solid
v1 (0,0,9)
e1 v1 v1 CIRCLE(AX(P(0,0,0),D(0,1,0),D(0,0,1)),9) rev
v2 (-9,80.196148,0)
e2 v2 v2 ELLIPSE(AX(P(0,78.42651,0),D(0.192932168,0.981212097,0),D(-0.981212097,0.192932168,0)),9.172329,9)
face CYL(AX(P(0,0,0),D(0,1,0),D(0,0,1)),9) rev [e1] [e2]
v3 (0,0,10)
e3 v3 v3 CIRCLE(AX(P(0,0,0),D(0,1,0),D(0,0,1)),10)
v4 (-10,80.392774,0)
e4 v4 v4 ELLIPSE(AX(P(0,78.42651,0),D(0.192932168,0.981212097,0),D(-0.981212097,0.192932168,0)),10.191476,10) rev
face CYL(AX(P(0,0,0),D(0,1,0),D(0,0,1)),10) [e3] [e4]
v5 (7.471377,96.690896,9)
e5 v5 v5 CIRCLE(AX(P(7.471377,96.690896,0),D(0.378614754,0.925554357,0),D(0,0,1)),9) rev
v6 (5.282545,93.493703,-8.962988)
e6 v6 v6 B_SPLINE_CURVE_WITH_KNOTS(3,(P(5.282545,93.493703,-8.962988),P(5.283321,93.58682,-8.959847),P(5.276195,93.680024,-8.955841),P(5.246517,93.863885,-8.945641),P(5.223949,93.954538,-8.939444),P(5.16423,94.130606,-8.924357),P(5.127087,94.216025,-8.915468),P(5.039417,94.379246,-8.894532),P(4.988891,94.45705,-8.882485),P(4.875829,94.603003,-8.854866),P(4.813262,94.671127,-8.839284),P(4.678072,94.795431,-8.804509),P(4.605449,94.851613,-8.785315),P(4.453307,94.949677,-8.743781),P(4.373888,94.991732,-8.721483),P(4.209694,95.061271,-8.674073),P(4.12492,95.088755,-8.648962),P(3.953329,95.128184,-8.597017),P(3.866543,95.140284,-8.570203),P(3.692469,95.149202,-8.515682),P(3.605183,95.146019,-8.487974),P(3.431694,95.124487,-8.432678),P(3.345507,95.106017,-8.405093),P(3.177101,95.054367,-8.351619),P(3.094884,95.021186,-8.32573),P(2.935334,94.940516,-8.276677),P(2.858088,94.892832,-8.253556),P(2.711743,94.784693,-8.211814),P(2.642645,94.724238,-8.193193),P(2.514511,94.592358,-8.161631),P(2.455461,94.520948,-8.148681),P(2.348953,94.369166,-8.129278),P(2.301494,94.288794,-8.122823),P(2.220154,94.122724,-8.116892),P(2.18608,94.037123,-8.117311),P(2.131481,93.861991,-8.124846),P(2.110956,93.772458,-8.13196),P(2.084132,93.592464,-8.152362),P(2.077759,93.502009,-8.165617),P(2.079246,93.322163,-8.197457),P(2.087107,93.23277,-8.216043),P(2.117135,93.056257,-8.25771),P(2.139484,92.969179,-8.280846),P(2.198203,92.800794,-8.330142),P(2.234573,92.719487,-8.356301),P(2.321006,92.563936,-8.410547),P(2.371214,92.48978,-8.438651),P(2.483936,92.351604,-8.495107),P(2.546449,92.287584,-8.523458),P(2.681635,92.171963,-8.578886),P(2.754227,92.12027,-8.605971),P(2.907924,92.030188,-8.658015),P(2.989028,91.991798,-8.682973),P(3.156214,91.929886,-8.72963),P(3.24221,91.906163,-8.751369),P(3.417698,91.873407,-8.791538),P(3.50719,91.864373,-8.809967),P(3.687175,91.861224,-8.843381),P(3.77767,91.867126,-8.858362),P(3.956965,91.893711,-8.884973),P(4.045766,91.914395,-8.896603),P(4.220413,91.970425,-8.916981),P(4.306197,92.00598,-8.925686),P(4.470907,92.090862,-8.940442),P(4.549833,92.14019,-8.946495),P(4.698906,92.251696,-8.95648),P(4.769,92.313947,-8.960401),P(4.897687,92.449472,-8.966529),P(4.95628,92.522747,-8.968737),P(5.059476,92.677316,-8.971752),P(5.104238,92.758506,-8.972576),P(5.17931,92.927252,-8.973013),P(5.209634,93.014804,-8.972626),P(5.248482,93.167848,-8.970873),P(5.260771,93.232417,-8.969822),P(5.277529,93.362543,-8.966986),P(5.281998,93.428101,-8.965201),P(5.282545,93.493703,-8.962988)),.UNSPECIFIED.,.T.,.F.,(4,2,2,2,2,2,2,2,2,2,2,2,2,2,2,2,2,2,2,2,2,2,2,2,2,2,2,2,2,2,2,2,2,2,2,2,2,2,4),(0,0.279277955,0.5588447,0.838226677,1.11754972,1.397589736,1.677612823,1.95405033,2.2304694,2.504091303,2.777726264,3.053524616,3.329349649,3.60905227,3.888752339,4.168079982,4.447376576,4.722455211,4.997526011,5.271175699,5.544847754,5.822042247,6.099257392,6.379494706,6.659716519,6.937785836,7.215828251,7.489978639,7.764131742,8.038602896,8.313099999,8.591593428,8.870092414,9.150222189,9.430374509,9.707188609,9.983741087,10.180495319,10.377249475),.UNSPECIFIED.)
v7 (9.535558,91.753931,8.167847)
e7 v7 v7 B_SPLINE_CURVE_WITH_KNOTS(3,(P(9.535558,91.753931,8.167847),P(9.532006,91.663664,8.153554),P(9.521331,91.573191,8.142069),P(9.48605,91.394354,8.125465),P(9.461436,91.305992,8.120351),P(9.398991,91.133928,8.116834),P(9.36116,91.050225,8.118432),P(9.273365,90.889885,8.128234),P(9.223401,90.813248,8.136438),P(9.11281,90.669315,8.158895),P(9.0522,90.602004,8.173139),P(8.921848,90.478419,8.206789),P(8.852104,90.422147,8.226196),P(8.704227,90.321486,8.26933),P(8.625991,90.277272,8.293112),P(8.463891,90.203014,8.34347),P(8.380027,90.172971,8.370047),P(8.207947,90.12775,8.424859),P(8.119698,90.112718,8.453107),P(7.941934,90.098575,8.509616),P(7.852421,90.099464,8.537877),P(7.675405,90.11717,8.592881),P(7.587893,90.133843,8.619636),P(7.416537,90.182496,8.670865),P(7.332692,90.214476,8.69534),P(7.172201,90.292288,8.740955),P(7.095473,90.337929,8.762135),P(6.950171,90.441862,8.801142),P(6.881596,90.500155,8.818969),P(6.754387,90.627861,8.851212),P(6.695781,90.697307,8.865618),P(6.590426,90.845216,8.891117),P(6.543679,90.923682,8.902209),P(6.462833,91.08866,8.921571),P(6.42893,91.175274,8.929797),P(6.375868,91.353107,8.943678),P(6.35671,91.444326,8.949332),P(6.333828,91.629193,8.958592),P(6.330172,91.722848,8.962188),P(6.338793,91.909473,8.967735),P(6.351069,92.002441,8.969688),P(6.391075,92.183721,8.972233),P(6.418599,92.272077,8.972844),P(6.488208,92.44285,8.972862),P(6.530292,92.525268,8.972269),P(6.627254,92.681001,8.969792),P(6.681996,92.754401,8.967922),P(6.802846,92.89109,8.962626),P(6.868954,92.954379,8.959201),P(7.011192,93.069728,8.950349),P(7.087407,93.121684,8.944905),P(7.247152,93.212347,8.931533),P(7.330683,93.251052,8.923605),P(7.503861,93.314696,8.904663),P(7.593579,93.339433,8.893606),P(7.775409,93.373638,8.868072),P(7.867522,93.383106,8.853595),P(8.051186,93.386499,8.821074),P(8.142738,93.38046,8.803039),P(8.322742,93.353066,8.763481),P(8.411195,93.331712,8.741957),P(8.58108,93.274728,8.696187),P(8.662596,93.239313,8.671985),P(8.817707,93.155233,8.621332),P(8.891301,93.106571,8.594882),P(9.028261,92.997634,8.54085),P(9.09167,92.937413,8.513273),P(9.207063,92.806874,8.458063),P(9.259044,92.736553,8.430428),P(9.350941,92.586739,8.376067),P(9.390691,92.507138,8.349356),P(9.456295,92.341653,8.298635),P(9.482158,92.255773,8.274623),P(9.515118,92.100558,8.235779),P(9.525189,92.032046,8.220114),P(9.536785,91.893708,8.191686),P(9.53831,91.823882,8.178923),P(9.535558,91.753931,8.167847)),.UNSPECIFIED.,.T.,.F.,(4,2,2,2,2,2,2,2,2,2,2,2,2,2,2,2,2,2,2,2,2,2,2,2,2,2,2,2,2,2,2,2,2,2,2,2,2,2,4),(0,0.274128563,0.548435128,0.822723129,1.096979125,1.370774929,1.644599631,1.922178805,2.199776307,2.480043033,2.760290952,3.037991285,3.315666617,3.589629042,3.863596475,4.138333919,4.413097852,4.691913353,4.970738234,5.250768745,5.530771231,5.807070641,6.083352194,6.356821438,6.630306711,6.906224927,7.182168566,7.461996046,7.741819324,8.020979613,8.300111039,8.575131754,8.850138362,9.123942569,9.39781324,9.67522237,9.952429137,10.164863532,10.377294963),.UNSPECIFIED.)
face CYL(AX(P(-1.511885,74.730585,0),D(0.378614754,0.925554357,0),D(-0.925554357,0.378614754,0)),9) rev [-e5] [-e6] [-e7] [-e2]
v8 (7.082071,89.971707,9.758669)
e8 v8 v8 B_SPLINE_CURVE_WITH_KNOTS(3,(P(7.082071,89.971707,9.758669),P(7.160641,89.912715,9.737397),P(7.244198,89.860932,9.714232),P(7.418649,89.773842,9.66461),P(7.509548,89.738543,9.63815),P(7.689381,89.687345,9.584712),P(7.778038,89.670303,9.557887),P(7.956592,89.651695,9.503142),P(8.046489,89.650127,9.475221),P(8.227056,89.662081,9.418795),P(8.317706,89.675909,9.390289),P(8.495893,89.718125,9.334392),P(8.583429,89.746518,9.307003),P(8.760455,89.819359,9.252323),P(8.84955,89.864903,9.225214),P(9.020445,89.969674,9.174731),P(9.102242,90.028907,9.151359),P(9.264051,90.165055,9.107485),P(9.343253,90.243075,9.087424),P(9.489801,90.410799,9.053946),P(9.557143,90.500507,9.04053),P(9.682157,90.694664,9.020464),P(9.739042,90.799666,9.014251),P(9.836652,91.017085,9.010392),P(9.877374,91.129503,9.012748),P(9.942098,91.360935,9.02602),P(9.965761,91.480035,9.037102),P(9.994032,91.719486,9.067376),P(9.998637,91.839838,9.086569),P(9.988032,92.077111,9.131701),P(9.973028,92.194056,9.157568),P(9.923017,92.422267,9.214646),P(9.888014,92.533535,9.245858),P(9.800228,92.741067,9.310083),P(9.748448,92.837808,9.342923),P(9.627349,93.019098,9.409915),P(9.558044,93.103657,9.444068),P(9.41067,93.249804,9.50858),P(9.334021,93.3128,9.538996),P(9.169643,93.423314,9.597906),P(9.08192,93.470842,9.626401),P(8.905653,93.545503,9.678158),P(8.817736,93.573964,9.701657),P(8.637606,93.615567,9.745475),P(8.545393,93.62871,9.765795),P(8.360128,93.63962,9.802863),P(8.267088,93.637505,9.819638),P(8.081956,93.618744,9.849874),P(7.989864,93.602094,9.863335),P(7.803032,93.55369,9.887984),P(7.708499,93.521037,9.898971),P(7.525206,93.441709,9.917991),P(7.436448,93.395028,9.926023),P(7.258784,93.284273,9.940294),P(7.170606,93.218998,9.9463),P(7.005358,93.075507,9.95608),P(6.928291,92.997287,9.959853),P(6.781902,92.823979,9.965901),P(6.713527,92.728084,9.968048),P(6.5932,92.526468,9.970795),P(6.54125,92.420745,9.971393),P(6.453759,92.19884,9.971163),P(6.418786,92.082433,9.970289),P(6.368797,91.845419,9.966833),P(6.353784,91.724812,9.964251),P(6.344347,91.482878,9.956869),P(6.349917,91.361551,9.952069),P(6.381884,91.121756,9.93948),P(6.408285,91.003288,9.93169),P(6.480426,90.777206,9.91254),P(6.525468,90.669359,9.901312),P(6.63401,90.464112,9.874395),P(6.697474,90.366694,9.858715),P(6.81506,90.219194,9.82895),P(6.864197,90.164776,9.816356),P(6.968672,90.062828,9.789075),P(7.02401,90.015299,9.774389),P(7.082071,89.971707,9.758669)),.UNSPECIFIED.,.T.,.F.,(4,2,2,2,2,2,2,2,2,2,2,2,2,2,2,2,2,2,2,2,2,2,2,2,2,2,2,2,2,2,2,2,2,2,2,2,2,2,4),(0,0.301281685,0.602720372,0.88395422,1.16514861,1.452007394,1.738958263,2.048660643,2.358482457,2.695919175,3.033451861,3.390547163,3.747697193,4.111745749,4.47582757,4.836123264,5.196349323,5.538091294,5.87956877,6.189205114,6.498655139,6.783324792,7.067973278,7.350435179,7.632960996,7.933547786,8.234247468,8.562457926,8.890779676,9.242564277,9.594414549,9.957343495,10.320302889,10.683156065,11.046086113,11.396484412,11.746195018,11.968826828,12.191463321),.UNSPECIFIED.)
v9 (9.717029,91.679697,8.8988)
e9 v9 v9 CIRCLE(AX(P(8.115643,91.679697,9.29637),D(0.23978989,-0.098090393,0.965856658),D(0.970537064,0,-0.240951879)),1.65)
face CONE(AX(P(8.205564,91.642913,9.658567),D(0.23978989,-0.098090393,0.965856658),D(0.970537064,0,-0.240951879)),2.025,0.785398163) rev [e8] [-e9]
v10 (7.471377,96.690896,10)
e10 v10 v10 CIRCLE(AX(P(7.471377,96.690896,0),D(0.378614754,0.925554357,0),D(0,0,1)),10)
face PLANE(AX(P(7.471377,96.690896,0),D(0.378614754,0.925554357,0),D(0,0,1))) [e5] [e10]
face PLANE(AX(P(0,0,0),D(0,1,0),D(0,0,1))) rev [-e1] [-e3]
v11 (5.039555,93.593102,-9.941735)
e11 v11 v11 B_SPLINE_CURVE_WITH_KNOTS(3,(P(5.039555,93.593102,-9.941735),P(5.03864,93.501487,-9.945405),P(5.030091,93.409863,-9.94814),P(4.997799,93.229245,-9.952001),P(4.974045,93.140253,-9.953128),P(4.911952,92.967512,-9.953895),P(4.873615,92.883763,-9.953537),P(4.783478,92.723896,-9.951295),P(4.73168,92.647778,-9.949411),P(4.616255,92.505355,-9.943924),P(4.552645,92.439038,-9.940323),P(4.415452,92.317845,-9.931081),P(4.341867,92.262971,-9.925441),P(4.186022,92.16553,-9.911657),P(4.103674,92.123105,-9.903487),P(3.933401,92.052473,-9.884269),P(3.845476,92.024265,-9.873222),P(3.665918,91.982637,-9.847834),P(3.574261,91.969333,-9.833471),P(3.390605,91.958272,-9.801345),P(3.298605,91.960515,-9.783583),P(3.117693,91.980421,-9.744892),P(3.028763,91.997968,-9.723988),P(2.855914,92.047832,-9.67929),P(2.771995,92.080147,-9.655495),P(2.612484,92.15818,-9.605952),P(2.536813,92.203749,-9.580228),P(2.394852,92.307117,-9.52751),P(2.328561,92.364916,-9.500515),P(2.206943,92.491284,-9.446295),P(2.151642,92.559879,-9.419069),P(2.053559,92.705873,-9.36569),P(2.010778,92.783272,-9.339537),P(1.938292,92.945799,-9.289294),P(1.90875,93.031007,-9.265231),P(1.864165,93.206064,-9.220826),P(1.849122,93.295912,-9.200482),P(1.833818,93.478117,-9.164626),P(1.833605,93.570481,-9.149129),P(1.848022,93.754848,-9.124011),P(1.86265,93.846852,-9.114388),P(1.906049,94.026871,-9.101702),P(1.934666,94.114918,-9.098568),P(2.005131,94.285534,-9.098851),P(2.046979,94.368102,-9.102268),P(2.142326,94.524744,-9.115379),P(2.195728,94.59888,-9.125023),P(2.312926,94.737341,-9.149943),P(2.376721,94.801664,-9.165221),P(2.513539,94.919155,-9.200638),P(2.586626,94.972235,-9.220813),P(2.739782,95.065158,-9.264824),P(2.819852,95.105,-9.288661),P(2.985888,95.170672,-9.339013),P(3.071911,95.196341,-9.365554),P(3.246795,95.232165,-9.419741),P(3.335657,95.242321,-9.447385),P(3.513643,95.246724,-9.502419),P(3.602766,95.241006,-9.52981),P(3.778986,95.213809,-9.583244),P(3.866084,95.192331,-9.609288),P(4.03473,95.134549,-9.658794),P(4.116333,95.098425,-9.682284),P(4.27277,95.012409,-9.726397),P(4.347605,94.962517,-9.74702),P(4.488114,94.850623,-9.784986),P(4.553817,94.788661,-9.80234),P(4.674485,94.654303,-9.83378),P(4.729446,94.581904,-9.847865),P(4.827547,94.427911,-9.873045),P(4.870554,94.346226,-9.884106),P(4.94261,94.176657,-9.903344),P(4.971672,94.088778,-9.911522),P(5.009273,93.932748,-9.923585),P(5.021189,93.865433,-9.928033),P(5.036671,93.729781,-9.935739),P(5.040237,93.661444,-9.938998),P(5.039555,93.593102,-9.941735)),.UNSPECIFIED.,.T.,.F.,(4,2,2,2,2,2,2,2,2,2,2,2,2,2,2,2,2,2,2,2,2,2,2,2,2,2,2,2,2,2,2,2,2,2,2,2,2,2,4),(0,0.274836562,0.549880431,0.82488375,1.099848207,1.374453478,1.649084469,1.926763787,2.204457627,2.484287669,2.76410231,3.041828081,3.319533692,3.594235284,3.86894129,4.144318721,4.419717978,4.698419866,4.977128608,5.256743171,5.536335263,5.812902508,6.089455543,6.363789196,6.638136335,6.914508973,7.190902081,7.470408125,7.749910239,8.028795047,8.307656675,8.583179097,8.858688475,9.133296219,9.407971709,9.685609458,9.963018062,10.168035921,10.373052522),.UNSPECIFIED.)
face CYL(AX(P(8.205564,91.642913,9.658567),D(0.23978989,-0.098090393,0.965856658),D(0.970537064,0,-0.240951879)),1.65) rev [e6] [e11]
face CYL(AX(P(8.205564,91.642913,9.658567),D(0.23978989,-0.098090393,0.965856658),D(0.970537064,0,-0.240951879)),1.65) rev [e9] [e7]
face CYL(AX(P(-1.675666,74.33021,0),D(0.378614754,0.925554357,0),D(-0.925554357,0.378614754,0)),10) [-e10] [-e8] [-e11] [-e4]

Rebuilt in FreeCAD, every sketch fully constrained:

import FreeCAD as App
import Part
import Sketcher

V = App.Vector
Q = App.Units.Quantity

doc = App.newDocument("Part")
params = doc.addObject("Spreadsheet::Sheet", "Params")
for row, (alias, value) in enumerate([
    ("sketch1_diameter", "20 mm"),
    ("sketch1_diameter2", "18 mm"),
    ("sketch3_diameter", "3.3 mm"),
    ("hole_diameter", "3.3 mm"),
    ("hole_csink_diameter", "4.05 mm"),
], start=1):
    params.set(f"A{row}", alias)
    params.set(f"B{row}", "=" + value)
    params.setAlias(f"B{row}", alias)

body = doc.addObject("PartDesign::Body", "Body")

sketch1 = doc.addObject("Sketcher::SketchObject", "Sketch")
body.addObject(sketch1)
sketch1.AttachmentSupport = (doc.XZ_Plane, [""])
sketch1.MapMode = "FlatFace"
sketch1.addGeometry(Part.Circle(V(0, 0, 0), V(0, 0, 1), 10), False)
sketch1.addGeometry(Part.Circle(V(0, 0, 0), V(0, 0, 1), 9), False)
sketch1.addConstraint(Sketcher.Constraint("Coincident", 0, 3, -1, 1))
sketch1.addConstraint(Sketcher.Constraint("Coincident", 1, 3, -1, 1))
sketch1.addConstraint(Sketcher.Constraint("Diameter", 0, Q("20 mm")))
sketch1.addConstraint(Sketcher.Constraint("Diameter", 1, Q("18 mm")))
sketch1.setExpression("Constraints[2]", "Params.sketch1_diameter")
sketch1.setExpression("Constraints[3]", "Params.sketch1_diameter2")

sketch2 = doc.addObject("Sketcher::SketchObject", "Sketch001")
body.addObject(sketch2)
sketch2.AttachmentSupport = (doc.XY_Plane, [""])
sketch2.MapMode = "FlatFace"
sketch2.addGeometry(Part.LineSegment(V(0, 0, 0), V(0, 78, 0)), False)
sketch2.addGeometry(Part.LineSegment(V(0, 78, 0), V(7, 97, 0)), False)
sketch2.addConstraint(Sketcher.Constraint("Coincident", 0, 2, 1, 1))
sketch2.addConstraint(Sketcher.Constraint("Vertical", 0))
sketch2.addConstraint(Sketcher.Constraint("Coincident", 0, 1, -1, 1))
sketch2.addConstraint(Sketcher.Constraint("DistanceY", 0, 1, 0, 2, Q("78.42651 mm")))
sketch2.addConstraint(Sketcher.Constraint("Distance", 1, Q("19.733455 mm")))
sketch2.addConstraint(Sketcher.Constraint("DistanceX", -1, 1, 1, 2, Q("7.471377 mm")))
doc.recompute()

additivepipe = doc.addObject("PartDesign::AdditivePipe", "AdditivePipe")
body.addObject(additivepipe)
additivepipe.Profile = sketch1
additivepipe.Spine = (sketch2, ["Edge1", "Edge2"])
additivepipe.Transition = "Right corner"

sketch3 = doc.addObject("Sketcher::SketchObject", "Sketch002")
body.addObject(sketch3)
sketch3.Placement = App.Placement(V(0.553222, -0.226306, 2.22834), App.Rotation(V(0.970537064, 0, -0.240951878), V(0.023635064, 0.995177509, 0.095200362), V(0.23978989, -0.098090393, 0.965856658), "ZXY"))
sketch3.addGeometry(Part.Circle(V(5.6, 92.3, 0), V(0, 0, 1), 1.6), False)
sketch3.addConstraint(Sketcher.Constraint("Diameter", 0, Q("3.3 mm")))
sketch3.addConstraint(Sketcher.Constraint("DistanceX", -1, 1, 0, 3, Q("5.636554 mm")))
sketch3.addConstraint(Sketcher.Constraint("DistanceY", -1, 1, 0, 3, Q("92.314404 mm")))
sketch3.setExpression("Constraints[0]", "Params.sketch3_diameter")
doc.recompute()
hole = doc.addObject("PartDesign::Hole", "Hole")
body.addObject(hole)
hole.Profile = sketch3
hole.ThreadType = "None"
hole.setExpression("Diameter", "Params.hole_diameter")
hole.DepthType = "ThroughAll"
hole.HoleCutType = "Countersink"
hole.setExpression("HoleCutDiameter", "Params.hole_csink_diameter")
hole.HoleCutCountersinkAngle = 90

doc.recompute()
